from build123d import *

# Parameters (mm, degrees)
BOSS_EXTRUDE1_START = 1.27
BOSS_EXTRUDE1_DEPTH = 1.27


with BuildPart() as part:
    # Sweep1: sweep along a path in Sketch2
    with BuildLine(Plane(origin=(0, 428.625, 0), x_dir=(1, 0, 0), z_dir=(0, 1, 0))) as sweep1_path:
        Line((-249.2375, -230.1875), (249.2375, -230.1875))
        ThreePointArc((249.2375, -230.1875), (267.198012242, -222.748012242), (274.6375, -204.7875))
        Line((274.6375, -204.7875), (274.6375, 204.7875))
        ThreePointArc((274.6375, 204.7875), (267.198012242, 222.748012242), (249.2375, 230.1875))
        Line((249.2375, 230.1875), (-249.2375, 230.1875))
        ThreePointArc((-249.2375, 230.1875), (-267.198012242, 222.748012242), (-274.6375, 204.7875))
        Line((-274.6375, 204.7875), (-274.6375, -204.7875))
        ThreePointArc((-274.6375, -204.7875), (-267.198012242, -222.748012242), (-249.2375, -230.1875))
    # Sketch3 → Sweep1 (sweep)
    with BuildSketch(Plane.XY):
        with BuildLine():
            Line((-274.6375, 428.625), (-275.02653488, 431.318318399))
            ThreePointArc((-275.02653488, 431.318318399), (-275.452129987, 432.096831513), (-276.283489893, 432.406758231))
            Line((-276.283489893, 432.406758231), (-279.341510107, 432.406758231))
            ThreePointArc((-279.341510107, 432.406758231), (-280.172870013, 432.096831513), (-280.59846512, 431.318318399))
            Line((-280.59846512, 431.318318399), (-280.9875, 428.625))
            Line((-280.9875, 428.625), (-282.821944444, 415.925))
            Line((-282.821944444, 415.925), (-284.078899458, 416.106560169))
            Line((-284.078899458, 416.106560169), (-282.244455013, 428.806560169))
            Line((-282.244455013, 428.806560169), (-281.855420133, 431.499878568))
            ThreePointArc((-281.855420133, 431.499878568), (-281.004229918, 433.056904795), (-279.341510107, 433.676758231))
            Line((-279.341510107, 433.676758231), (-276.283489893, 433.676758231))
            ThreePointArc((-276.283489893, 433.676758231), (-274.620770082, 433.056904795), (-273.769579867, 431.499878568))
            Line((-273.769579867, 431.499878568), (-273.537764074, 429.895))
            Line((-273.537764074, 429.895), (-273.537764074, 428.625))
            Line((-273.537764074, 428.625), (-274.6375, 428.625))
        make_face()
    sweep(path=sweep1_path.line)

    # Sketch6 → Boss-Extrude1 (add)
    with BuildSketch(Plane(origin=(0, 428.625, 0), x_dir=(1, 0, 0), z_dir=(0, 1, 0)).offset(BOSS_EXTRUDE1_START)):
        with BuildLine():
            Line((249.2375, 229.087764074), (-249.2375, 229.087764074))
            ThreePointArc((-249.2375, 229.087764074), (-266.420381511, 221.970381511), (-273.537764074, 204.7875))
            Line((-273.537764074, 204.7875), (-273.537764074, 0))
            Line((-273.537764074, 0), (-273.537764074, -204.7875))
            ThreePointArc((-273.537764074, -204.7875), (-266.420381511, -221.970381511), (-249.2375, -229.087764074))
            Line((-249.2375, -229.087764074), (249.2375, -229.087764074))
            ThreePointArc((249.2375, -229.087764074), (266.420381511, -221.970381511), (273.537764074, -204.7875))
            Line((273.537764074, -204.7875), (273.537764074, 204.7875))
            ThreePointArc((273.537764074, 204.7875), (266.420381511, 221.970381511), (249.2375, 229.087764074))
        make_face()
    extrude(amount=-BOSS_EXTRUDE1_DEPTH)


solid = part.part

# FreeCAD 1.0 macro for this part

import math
import FreeCAD as App
import Part
import Sketcher
from FreeCAD import Vector
Q = App.Units.Quantity

doc = App.newDocument("Part")
body = doc.addObject("PartDesign::Body", "Body")

# Sketch on XY plane
sketch1 = doc.addObject("Sketcher::SketchObject", "Sketch")
body.addObject(sketch1)
sketch1.AttachmentSupport = (doc.XY_Plane, [""])
sketch1.MapMode = "FlatFace"
sketch1.addGeometry([
    Part.LineSegment(Vector(-275, 431.3, 0), Vector(-274.6, 428.6, 0)),  # 0
    Part.LineSegment(Vector(-274.6, 428.6, 0), Vector(-273.5, 428.6, 0)),  # 1
    Part.LineSegment(Vector(-273.5, 428.6, 0), Vector(-273.5, 429.9, 0)),  # 2
    Part.LineSegment(Vector(-273.5, 429.9, 0), Vector(-273.8, 431.5, 0)),  # 3
    Part.ArcOfCircle(Part.Circle(Vector(-276.3, 431.1, 0), Vector(0, 0, 1), 2.5), math.radians(8), math.radians(90)),  # 4
    Part.LineSegment(Vector(-276.3, 433.7, 0), Vector(-279.3, 433.7, 0)),  # 5
    Part.ArcOfCircle(Part.Circle(Vector(-279.3, 431.1, 0), Vector(0, 0, 1), 2.5), math.radians(90), math.radians(172)),  # 6
    Part.LineSegment(Vector(-281.9, 431.5, 0), Vector(-282.2, 428.8, 0)),  # 7
    Part.LineSegment(Vector(-282.2, 428.8, 0), Vector(-284.1, 416.1, 0)),  # 8
    Part.LineSegment(Vector(-284.1, 416.1, 0), Vector(-282.8, 415.9, 0)),  # 9
    Part.LineSegment(Vector(-282.8, 415.9, 0), Vector(-281, 428.6, 0)),  # 10
    Part.LineSegment(Vector(-281, 428.6, 0), Vector(-280.6, 431.3, 0)),  # 11
    Part.ArcOfCircle(Part.Circle(Vector(-279.3, 431.1, 0), Vector(0, 0, 1), 1.3), math.radians(90), math.radians(172)),  # 12
    Part.LineSegment(Vector(-279.3, 432.4, 0), Vector(-276.3, 432.4, 0)),  # 13
    Part.ArcOfCircle(Part.Circle(Vector(-276.3, 431.1, 0), Vector(0, 0, 1), 1.3), math.radians(8), math.radians(90)),  # 14
], False)
sketch1.addConstraint([
    Sketcher.Constraint("Coincident", 0, 2, 1, 1),
    Sketcher.Constraint("Coincident", 1, 2, 2, 1),
    Sketcher.Constraint("Coincident", 2, 2, 3, 1),
    Sketcher.Constraint("Tangent", 3, 2, 4, 1),
    Sketcher.Constraint("Tangent", 4, 2, 5, 1),
    Sketcher.Constraint("Tangent", 5, 2, 6, 1),
    Sketcher.Constraint("Tangent", 6, 2, 7, 1),
    Sketcher.Constraint("Coincident", 7, 2, 8, 1),
    Sketcher.Constraint("Coincident", 8, 2, 9, 1),
    Sketcher.Constraint("Coincident", 9, 2, 10, 1),
    Sketcher.Constraint("Coincident", 10, 2, 11, 1),
    Sketcher.Constraint("Tangent", 11, 2, 12, 2),
    Sketcher.Constraint("Tangent", 12, 1, 13, 1),
    Sketcher.Constraint("Tangent", 13, 2, 14, 2),
    Sketcher.Constraint("Tangent", 14, 1, 0, 1),
    Sketcher.Constraint("Horizontal", 1),
    Sketcher.Constraint("Vertical", 2),
    Sketcher.Constraint("Horizontal", 5),
    Sketcher.Constraint("Horizontal", 13),
    Sketcher.Constraint("Coincident", 12, 3, 6, 3),
    Sketcher.Constraint("Coincident", 14, 3, 4, 3),
    Sketcher.Constraint("Equal", 4, 6),
    Sketcher.Constraint("Parallel", 0, 3),
    Sketcher.Constraint("Parallel", 7, 8),
    Sketcher.Constraint("Perpendicular", 8, 9),
    Sketcher.Constraint("Perpendicular", 9, 10),
    Sketcher.Constraint("Parallel", 10, 11),
    Sketcher.Constraint("Horizontal", 3, 2, 6, 2),
    Sketcher.Constraint("Horizontal", 1, 2, 10, 2),
    Sketcher.Constraint("Equal", 0, 7),
    Sketcher.Constraint("Radius", 4, Q("0.1 in")),
    Sketcher.Constraint("Radius", 12, Q("0.05 in")),
    Sketcher.Constraint("DistanceY", 2, 1, 2, 2, Q("0.05 in")),
    Sketcher.Constraint("DistanceY", 8, 2, 7, 2, Q("0.5 in")),
    Sketcher.Constraint("DistanceX", 0, 2, -1, 1, Q("10.8125 in")),
    Sketcher.Constraint("DistanceY", -1, 1, 0, 2, Q("16.875 in")),
    Sketcher.Constraint("DistanceX", 10, 2, -1, 1, Q("11.0625 in")),
    Sketcher.Constraint("DistanceX", 5, 2, 5, 1, 3.05802),
    Sketcher.Constraint("DistanceX", 8, 2, -1, 1, 284.078899),
])

# Sketch on XZ plane
sketch2 = doc.addObject("Sketcher::SketchObject", "Sketch001")
body.addObject(sketch2)
sketch2.AttachmentSupport = (doc.XZ_Plane, [""])
sketch2.MapMode = "FlatFace"
sketch2.AttachmentOffset = App.Placement(Vector(0, 0, -16.875 * 25.4), App.Rotation())
sketch2.addGeometry([
    Part.LineSegment(Vector(-249, 230, 0), Vector(249, 230, 0)),  # 0
    Part.ArcOfCircle(Part.Circle(Vector(249, 205, 0), Vector(0, 0, 1), 25), math.radians(0), math.radians(90)),  # 1
    Part.LineSegment(Vector(275, 205, 0), Vector(275, -205, 0)),  # 2
    Part.ArcOfCircle(Part.Circle(Vector(249, -205, 0), Vector(0, 0, 1), 25), math.radians(-90), math.radians(0)),  # 3
    Part.LineSegment(Vector(249, -230, 0), Vector(-249, -230, 0)),  # 4
    Part.ArcOfCircle(Part.Circle(Vector(-249, -205, 0), Vector(0, 0, 1), 25), math.radians(180), math.radians(270)),  # 5
    Part.LineSegment(Vector(-275, -205, 0), Vector(-275, 205, 0)),  # 6
    Part.ArcOfCircle(Part.Circle(Vector(-249, 205, 0), Vector(0, 0, 1), 25), math.radians(90), math.radians(180)),  # 7
], False)
sketch2.addConstraint([
    Sketcher.Constraint("Tangent", 0, 2, 1, 2),
    Sketcher.Constraint("Tangent", 1, 1, 2, 1),
    Sketcher.Constraint("Tangent", 2, 2, 3, 2),
    Sketcher.Constraint("Tangent", 3, 1, 4, 1),
    Sketcher.Constraint("Tangent", 4, 2, 5, 2),
    Sketcher.Constraint("Tangent", 5, 1, 6, 1),
    Sketcher.Constraint("Tangent", 6, 2, 7, 2),
    Sketcher.Constraint("Tangent", 7, 1, 0, 1),
    Sketcher.Constraint("Horizontal", 0),
    Sketcher.Constraint("Vertical", 2),
    Sketcher.Constraint("Horizontal", 4),
    Sketcher.Constraint("Vertical", 6),
    Sketcher.Constraint("Equal", 1, 3),
    Sketcher.Constraint("Equal", 3, 5),
    Sketcher.Constraint("Equal", 5, 7),
    Sketcher.Constraint("Symmetric", 1, 3, 5, 3, -1, 1),
    Sketcher.Constraint("Radius", 1, Q("1 in")),
    Sketcher.Constraint("DistanceX", 0, 1, 0, 2, Q("19.625 in")),
    Sketcher.Constraint("DistanceY", 2, 2, 2, 1, Q("16.125 in")),
])
doc.recompute()

additivepipe = doc.addObject("PartDesign::AdditivePipe", "AdditivePipe")
body.addObject(additivepipe)
additivepipe.Profile = sketch1
additivepipe.Spine = (sketch2, ["Edge1", "Edge2", "Edge3", "Edge4", "Edge5", "Edge6", "Edge7", "Edge8"])

# Sketch on XZ plane
sketch3 = doc.addObject("Sketcher::SketchObject", "Sketch002")
body.addObject(sketch3)
sketch3.AttachmentSupport = (doc.XZ_Plane, [""])
sketch3.MapMode = "FlatFace"
sketch3.AttachmentOffset = App.Placement(Vector(0, 0, -16.925 * 25.4), App.Rotation())
sketch3.addGeometry([
    Part.LineSegment(Vector(249, -229, 0), Vector(-249, -229, 0)),  # 0
    Part.ArcOfCircle(Part.Circle(Vector(-249, -205, 0), Vector(0, 0, 1), 24), math.radians(-180), math.radians(-90)),  # 1
    Part.LineSegment(Vector(-274, -205, 0), Vector(-274, 205, 0)),  # 2
    Part.ArcOfCircle(Part.Circle(Vector(-249, 205, 0), Vector(0, 0, 1), 24), math.radians(90), math.radians(180)),  # 3
    Part.LineSegment(Vector(-249, 229, 0), Vector(249, 229, 0)),  # 4
    Part.ArcOfCircle(Part.Circle(Vector(249, 205, 0), Vector(0, 0, 1), 24), math.radians(0), math.radians(90)),  # 5
    Part.LineSegment(Vector(274, 205, 0), Vector(274, -205, 0)),  # 6
    Part.ArcOfCircle(Part.Circle(Vector(249, -205, 0), Vector(0, 0, 1), 24), math.radians(-90), math.radians(0)),  # 7
], False)
sketch3.addConstraint([
    Sketcher.Constraint("Tangent", 0, 2, 1, 2),
    Sketcher.Constraint("Tangent", 1, 1, 2, 1),
    Sketcher.Constraint("Tangent", 2, 2, 3, 2),
    Sketcher.Constraint("Tangent", 3, 1, 4, 1),
    Sketcher.Constraint("Tangent", 4, 2, 5, 2),
    Sketcher.Constraint("Tangent", 5, 1, 6, 1),
    Sketcher.Constraint("Tangent", 6, 2, 7, 2),
    Sketcher.Constraint("Tangent", 7, 1, 0, 1),
    Sketcher.Constraint("Horizontal", 0),
    Sketcher.Constraint("Vertical", 2),
    Sketcher.Constraint("Horizontal", 4),
    Sketcher.Constraint("Vertical", 6),
    Sketcher.Constraint("Equal", 1, 3),
    Sketcher.Constraint("Equal", 3, 5),
    Sketcher.Constraint("Equal", 5, 7),
    Sketcher.Constraint("Symmetric", 1, 3, 5, 3, -1, 1),
    Sketcher.Constraint("DistanceX", 0, 2, 0, 1, Q("19.625 in")),
    Sketcher.Constraint("DistanceY", 2, 1, 2, 2, Q("16.125 in")),
    Sketcher.Constraint("Radius", 1, 24.300264),
])
pad1 = doc.addObject("PartDesign::Pad", "Pad")
body.addObject(pad1)
pad1.Profile = sketch3
pad1.Length = Q("0.05 in")

doc.recompute()
